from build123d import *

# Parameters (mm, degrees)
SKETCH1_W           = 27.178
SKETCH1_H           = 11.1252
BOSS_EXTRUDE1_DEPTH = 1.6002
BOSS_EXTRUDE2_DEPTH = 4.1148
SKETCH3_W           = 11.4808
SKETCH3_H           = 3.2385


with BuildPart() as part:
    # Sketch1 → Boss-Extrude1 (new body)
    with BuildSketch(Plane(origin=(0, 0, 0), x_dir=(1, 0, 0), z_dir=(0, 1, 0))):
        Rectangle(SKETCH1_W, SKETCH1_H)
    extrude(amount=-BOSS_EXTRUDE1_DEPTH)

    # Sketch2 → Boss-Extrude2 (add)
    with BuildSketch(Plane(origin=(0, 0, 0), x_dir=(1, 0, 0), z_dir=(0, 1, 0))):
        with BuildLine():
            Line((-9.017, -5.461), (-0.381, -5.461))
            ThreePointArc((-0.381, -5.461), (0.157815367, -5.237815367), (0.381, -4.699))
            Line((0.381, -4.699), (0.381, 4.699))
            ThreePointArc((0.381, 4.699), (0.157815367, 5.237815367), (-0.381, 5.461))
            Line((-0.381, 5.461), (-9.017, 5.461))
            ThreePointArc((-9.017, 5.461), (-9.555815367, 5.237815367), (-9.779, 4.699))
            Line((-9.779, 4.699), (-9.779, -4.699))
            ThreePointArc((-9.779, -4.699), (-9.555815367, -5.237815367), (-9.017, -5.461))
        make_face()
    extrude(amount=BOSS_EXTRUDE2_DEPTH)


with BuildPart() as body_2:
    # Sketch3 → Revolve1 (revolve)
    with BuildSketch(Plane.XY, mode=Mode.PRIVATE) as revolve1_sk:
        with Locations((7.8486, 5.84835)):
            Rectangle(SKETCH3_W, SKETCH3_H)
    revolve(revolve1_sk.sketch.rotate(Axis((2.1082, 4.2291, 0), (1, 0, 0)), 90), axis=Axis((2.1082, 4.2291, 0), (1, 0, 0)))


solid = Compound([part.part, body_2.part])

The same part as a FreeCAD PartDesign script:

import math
import FreeCAD as App
import Part
import Sketcher

V = App.Vector
Q = App.Units.Quantity


def add_polygon(sketch, points):
    """Adds a closed chain of lines whose ends are joined by coincident constraints."""
    first, n = sketch.GeometryCount, len(points)
    for a, b in zip(points, points[1:] + points[:1]):
        sketch.addGeometry(Part.LineSegment(App.Vector(*a, 0), App.Vector(*b, 0)), False)
    for i in range(n):
        sketch.addConstraint(Sketcher.Constraint("Coincident", first + i, 2, first + (i + 1) % n, 1))

doc = App.newDocument("Part")
params = doc.addObject("Spreadsheet::Sheet", "Params")
for row, (alias, value) in enumerate([
    ("sketch1_width", "1.07 in"),
    ("sketch1_height", "0.438 in"),
    ("pad1_length", "0.063 in"),
    ("sketch2_radius", "0.03 in"),
    ("sketch2_width", "0.34 in"),
    ("sketch2_height", "0.37 in"),
    ("pad2_length", "0.162 in"),
    ("sketch3_width", "0.452 in"),
    ("revolution_angle", "360 deg"),
], start=1):
    params.set(f"A{row}", alias)
    params.set(f"B{row}", "=" + value)
    params.setAlias(f"B{row}", alias)

body = doc.addObject("PartDesign::Body", "Body")

sketch1 = body.newObject("Sketcher::SketchObject", "Sketch")
sketch1.AttachmentSupport = (doc.getObject("XZ_Plane"), [""])
sketch1.MapMode = "FlatFace"
add_polygon(sketch1, [(-14, -6), (-14, 6), (14, 6), (14, -6)])
sketch1.addConstraint([
    Sketcher.Constraint("Vertical", 0),
    Sketcher.Constraint("Horizontal", 1),
    Sketcher.Constraint("Vertical", 2),
    Sketcher.Constraint("Horizontal", 3),
    Sketcher.Constraint("Symmetric", 0, 2, 2, 2, -1, 1),
    Sketcher.Constraint("DistanceX", 1, 1, 1, 2, Q("1.07 in")),
    Sketcher.Constraint("DistanceY", 0, 1, 0, 2, Q("0.438 in")),
])
sketch1.setExpression("Constraints[9]", "Params.sketch1_width")
sketch1.setExpression("Constraints[10]", "Params.sketch1_height")
pad1 = body.newObject("PartDesign::Pad", "Pad")
pad1.Profile = sketch1
pad1.setExpression("Length", "Params.pad1_length")

sketch2 = body.newObject("Sketcher::SketchObject", "Sketch001")
sketch2.AttachmentSupport = (doc.getObject("XZ_Plane"), [""])
sketch2.MapMode = "FlatFace"
sketch2.addGeometry([
    Part.LineSegment(V(-9, 5.5, 0), V(-0.4, 5.5, 0)),
    Part.ArcOfCircle(Part.Circle(V(-0.4, 4.7, 0), V(0, 0, 1), 0.8), math.radians(0), math.radians(90)),
    Part.LineSegment(V(0.4, 4.7, 0), V(0.4, -4.7, 0)),
    Part.ArcOfCircle(Part.Circle(V(-0.4, -4.7, 0), V(0, 0, 1), 0.8), math.radians(-90), math.radians(0)),
    Part.LineSegment(V(-0.4, -5.5, 0), V(-9, -5.5, 0)),
    Part.ArcOfCircle(Part.Circle(V(-9, -4.7, 0), V(0, 0, 1), 0.8), math.radians(-180), math.radians(-90)),
    Part.LineSegment(V(-9.8, -4.7, 0), V(-9.8, 4.7, 0)),
    Part.ArcOfCircle(Part.Circle(V(-9, 4.7, 0), V(0, 0, 1), 0.8), math.radians(90), math.radians(180)),
], False)
sketch2.addConstraint([
    Sketcher.Constraint("Tangent", 0, 2, 1, 2),
    Sketcher.Constraint("Tangent", 1, 1, 2, 1),
    Sketcher.Constraint("Tangent", 2, 2, 3, 2),
    Sketcher.Constraint("Tangent", 3, 1, 4, 1),
    Sketcher.Constraint("Tangent", 4, 2, 5, 2),
    Sketcher.Constraint("Tangent", 5, 1, 6, 1),
    Sketcher.Constraint("Tangent", 6, 2, 7, 2),
    Sketcher.Constraint("Tangent", 7, 1, 0, 1),
    Sketcher.Constraint("Horizontal", 0),
    Sketcher.Constraint("Vertical", 2),
    Sketcher.Constraint("Horizontal", 4),
    Sketcher.Constraint("Vertical", 6),
    Sketcher.Constraint("Equal", 1, 3),
    Sketcher.Constraint("Equal", 3, 5),
    Sketcher.Constraint("Equal", 5, 7),
    Sketcher.Constraint("Radius", 1, Q("0.03 in")),
    Sketcher.Constraint("DistanceX", 0, 1, 0, 2, Q("0.34 in")),
    Sketcher.Constraint("DistanceY", 2, 2, 2, 1, Q("0.37 in")),
    Sketcher.Constraint("DistanceX", 1, 3, -1, 1, Q("0.015 in")),
    Sketcher.Constraint("DistanceY", -1, 1, 1, 3, Q("0.185 in")),
])
sketch2.setExpression("Constraints[15]", "Params.sketch2_radius")
sketch2.setExpression("Constraints[16]", "Params.sketch2_width")
sketch2.setExpression("Constraints[17]", "Params.sketch2_height")
pad2 = body.newObject("PartDesign::Pad", "Pad001")
pad2.Profile = sketch2
pad2.setExpression("Length", "Params.pad2_length")
pad2.Reversed = True
body2 = doc.addObject("PartDesign::Body", "Body001")

sketch3 = body2.newObject("Sketcher::SketchObject", "Sketch002")
sketch3.AttachmentSupport = (doc.getObject("XY_Plane001"), [""])
sketch3.MapMode = "FlatFace"
add_polygon(sketch3, [(2.1, 7.5), (2.1, 4.2), (13.6, 4.2), (13.6, 7.5)])
sketch3.addGeometry(Part.LineSegment(V(2.1, 4.2, 0), V(13.6, 4.2, 0)), True)
sketch3.addConstraint([
    Sketcher.Constraint("Vertical", 0),
    Sketcher.Constraint("Horizontal", 1),
    Sketcher.Constraint("Vertical", 2),
    Sketcher.Constraint("Horizontal", 3),
    Sketcher.Constraint("Horizontal", 4),
    Sketcher.Constraint("Coincident", 4, 1, 0, 2),
    Sketcher.Constraint("Vertical", 2, 2, 4, 2),
    Sketcher.Constraint("DistanceX", 1, 1, 1, 2, Q("0.452 in")),
    Sketcher.Constraint("DistanceY", 0, 2, 0, 1, Q("0.1275 in")),
    Sketcher.Constraint("DistanceX", -1, 1, 0, 2, Q("0.083 in")),
    Sketcher.Constraint("DistanceY", -1, 1, 2, 2, Q("0.294 in")),
])
sketch3.setExpression("Constraints[11]", "Params.sketch3_width")
revolution = body2.newObject("PartDesign::Revolution", "Revolution")
revolution.Profile = sketch3
revolution.ReferenceAxis = (sketch3, ["Axis0"])
revolution.setExpression("Angle", "Params.revolution_angle")

doc.recompute()
